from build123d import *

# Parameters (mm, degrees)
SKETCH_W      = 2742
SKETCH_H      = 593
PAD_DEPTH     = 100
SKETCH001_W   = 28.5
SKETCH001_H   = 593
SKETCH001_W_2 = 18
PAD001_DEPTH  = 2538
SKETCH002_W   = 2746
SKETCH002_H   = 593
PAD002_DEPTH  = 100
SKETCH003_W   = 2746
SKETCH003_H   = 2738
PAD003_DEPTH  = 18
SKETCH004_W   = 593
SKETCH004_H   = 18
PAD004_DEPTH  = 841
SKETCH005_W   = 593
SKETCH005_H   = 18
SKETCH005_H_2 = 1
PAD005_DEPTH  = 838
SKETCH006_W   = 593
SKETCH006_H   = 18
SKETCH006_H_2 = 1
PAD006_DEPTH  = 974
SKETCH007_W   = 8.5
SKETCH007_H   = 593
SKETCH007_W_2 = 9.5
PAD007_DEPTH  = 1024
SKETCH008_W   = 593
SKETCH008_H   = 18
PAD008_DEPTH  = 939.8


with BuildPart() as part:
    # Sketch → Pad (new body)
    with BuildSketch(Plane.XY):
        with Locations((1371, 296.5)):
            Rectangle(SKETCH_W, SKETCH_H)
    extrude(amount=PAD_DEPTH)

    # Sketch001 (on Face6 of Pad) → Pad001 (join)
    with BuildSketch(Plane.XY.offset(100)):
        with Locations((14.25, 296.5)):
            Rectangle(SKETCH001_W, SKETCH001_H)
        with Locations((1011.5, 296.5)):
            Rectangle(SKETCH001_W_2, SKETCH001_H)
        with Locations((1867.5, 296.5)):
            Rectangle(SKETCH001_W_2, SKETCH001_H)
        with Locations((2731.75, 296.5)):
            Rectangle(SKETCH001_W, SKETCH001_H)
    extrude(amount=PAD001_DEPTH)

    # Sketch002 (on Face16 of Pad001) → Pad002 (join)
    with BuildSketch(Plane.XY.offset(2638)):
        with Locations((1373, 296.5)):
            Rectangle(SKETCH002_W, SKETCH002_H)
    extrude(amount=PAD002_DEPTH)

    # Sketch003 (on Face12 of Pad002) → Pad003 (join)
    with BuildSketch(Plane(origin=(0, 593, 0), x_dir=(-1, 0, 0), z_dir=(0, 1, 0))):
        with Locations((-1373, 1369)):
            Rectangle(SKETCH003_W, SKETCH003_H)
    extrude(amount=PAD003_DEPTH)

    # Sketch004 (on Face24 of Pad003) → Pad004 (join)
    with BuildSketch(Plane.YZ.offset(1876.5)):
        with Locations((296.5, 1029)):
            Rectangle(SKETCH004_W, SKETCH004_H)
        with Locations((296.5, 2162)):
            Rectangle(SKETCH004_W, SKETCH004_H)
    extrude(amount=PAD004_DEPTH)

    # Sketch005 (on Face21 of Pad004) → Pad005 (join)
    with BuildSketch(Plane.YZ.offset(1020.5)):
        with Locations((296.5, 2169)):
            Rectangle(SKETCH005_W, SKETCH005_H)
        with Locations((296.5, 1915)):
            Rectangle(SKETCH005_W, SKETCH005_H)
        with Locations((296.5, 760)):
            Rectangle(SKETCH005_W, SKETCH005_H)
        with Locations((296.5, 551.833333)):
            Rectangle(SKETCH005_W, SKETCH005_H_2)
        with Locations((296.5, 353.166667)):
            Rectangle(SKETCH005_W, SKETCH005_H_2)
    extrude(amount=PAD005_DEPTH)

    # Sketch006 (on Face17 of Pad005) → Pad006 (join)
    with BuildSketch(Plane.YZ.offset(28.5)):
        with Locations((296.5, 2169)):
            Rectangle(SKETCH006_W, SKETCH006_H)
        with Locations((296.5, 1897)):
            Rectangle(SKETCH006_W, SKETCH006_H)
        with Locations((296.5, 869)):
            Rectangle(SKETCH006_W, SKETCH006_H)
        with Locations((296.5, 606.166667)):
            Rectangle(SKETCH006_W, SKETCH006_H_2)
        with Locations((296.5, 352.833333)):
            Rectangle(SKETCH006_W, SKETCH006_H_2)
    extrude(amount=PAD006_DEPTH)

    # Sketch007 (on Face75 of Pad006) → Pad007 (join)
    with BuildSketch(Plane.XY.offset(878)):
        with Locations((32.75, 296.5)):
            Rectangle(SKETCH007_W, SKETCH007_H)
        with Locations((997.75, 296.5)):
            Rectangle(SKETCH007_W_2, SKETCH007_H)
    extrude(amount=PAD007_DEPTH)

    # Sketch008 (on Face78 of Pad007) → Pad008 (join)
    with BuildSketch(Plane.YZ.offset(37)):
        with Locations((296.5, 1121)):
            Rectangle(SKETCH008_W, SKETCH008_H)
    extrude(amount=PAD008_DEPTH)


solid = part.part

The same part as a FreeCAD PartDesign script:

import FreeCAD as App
import Part
import Sketcher


def add_polygon(sketch, points):
    """Adds a closed chain of lines whose ends are joined by coincident constraints."""
    first, n = sketch.GeometryCount, len(points)
    for a, b in zip(points, points[1:] + points[:1]):
        sketch.addGeometry(Part.LineSegment(App.Vector(*a, 0), App.Vector(*b, 0)), False)
    for i in range(n):
        sketch.addConstraint(Sketcher.Constraint("Coincident", first + i, 2, first + (i + 1) % n, 1))

doc = App.newDocument("Part")
body = doc.addObject("PartDesign::Body", "Body")

# Sketch on XY plane
sketch1 = body.newObject("Sketcher::SketchObject", "Sketch")
sketch1.AttachmentSupport = (doc.getObject("XY_Plane"), [""])
sketch1.MapMode = "FlatFace"
add_polygon(sketch1, [(0, 593), (0, 0), (2742, 0), (2742, 593)])  # lines 0-3
sketch1.addConstraint(Sketcher.Constraint("Vertical", 0))
sketch1.addConstraint(Sketcher.Constraint("Horizontal", 1))
sketch1.addConstraint(Sketcher.Constraint("Vertical", 2))
sketch1.addConstraint(Sketcher.Constraint("Horizontal", 3))
sketch1.addConstraint(Sketcher.Constraint("Coincident", 0, 2, -1, 1))
sketch1.addConstraint(Sketcher.Constraint("DistanceX", 1, 1, 1, 2, 2742.0))
sketch1.addConstraint(Sketcher.Constraint("DistanceY", 0, 2, 0, 1, 593.0))
pad1 = body.newObject("PartDesign::Pad", "Pad")
pad1.Profile = sketch1
pad1.Length = 100

# Sketch on XY plane
sketch2 = body.newObject("Sketcher::SketchObject", "Sketch001")
sketch2.AttachmentSupport = (doc.getObject("XY_Plane"), [""])
sketch2.MapMode = "FlatFace"
sketch2.AttachmentOffset = App.Placement(App.Vector(0, 0, 100), App.Rotation())
add_polygon(sketch2, [(0, 593), (0, 0), (28, 0), (28, 593)])  # lines 0-3
add_polygon(sketch2, [(1002, 593), (1002, 0), (1020, 0), (1020, 593)])  # lines 4-7
add_polygon(sketch2, [(1858, 593), (1858, 0), (1876, 0), (1876, 593)])  # lines 8-11
add_polygon(sketch2, [(2718, 593), (2718, 0), (2746, 0), (2746, 593)])  # lines 12-15
sketch2.addConstraint(Sketcher.Constraint("Vertical", 0))
sketch2.addConstraint(Sketcher.Constraint("Horizontal", 1))
sketch2.addConstraint(Sketcher.Constraint("Vertical", 2))
sketch2.addConstraint(Sketcher.Constraint("Horizontal", 3))
sketch2.addConstraint(Sketcher.Constraint("Vertical", 4))
sketch2.addConstraint(Sketcher.Constraint("Horizontal", 5))
sketch2.addConstraint(Sketcher.Constraint("Vertical", 6))
sketch2.addConstraint(Sketcher.Constraint("Horizontal", 7))
sketch2.addConstraint(Sketcher.Constraint("Vertical", 8))
sketch2.addConstraint(Sketcher.Constraint("Horizontal", 9))
sketch2.addConstraint(Sketcher.Constraint("Vertical", 10))
sketch2.addConstraint(Sketcher.Constraint("Horizontal", 11))
sketch2.addConstraint(Sketcher.Constraint("Vertical", 12))
sketch2.addConstraint(Sketcher.Constraint("Horizontal", 13))
sketch2.addConstraint(Sketcher.Constraint("Vertical", 14))
sketch2.addConstraint(Sketcher.Constraint("Horizontal", 15))
sketch2.addConstraint(Sketcher.Constraint("Coincident", 0, 2, -1, 1))
sketch2.addConstraint(Sketcher.Constraint("PointOnObject", 4, 2, -1))
sketch2.addConstraint(Sketcher.Constraint("PointOnObject", 8, 2, -1))
sketch2.addConstraint(Sketcher.Constraint("PointOnObject", 12, 2, -1))
sketch2.addConstraint(Sketcher.Constraint("Horizontal", 3, 2, 6, 2))
sketch2.addConstraint(Sketcher.Constraint("Horizontal", 7, 2, 10, 2))
sketch2.addConstraint(Sketcher.Constraint("Horizontal", 11, 2, 14, 2))
sketch2.addConstraint(Sketcher.Constraint("Equal", 7, 9))
sketch2.addConstraint(Sketcher.Constraint("Equal", 3, 13))
sketch2.addConstraint(Sketcher.Constraint("DistanceX", 5, 1, 5, 2, 18.0))
sketch2.addConstraint(Sketcher.Constraint("DistanceY", 0, 2, 0, 1, 593.0))
sketch2.addConstraint(Sketcher.Constraint("DistanceX", 1, 1, 1, 2, 28.5))
sketch2.addConstraint(Sketcher.Constraint("DistanceX", -1, 1, 13, 2, 2746.0))
sketch2.addConstraint(Sketcher.Constraint("DistanceX", 1, 2, 4, 2, 974.0))
sketch2.addConstraint(Sketcher.Constraint("DistanceX", 5, 2, 8, 2, 838.0))
pad2 = body.newObject("PartDesign::Pad", "Pad001")
pad2.Profile = sketch2
pad2.Length = 2538

# Sketch on XY plane
sketch3 = body.newObject("Sketcher::SketchObject", "Sketch002")
sketch3.AttachmentSupport = (doc.getObject("XY_Plane"), [""])
sketch3.MapMode = "FlatFace"
sketch3.AttachmentOffset = App.Placement(App.Vector(0, 0, 2638), App.Rotation())
add_polygon(sketch3, [(0, 593), (0, 0), (2746, 0), (2746, 593)])  # lines 0-3
sketch3.addConstraint(Sketcher.Constraint("Vertical", 0))
sketch3.addConstraint(Sketcher.Constraint("Horizontal", 1))
sketch3.addConstraint(Sketcher.Constraint("Vertical", 2))
sketch3.addConstraint(Sketcher.Constraint("Horizontal", 3))
sketch3.addConstraint(Sketcher.Constraint("Coincident", 0, 2, -1, 1))
sketch3.addConstraint(Sketcher.Constraint("DistanceX", 1, 1, 1, 2, 2746.0))
sketch3.addConstraint(Sketcher.Constraint("DistanceY", 0, 2, 0, 1, 593.0))
pad3 = body.newObject("PartDesign::Pad", "Pad002")
pad3.Profile = sketch3
pad3.Length = 100

# Sketch on XZ plane
sketch4 = body.newObject("Sketcher::SketchObject", "Sketch003")
sketch4.AttachmentSupport = (doc.getObject("XZ_Plane"), [""])
sketch4.MapMode = "FlatFace"
sketch4.AttachmentOffset = App.Placement(App.Vector(0, 0, -593), App.Rotation())
add_polygon(sketch4, [(2746, 2738), (2746, 0), (0, 0), (0, 2738)])  # lines 0-3
sketch4.addConstraint(Sketcher.Constraint("Vertical", 0))
sketch4.addConstraint(Sketcher.Constraint("Horizontal", 1))
sketch4.addConstraint(Sketcher.Constraint("Vertical", 2))
sketch4.addConstraint(Sketcher.Constraint("Horizontal", 3))
sketch4.addConstraint(Sketcher.Constraint("Coincident", 1, 2, -1, 1))
sketch4.addConstraint(Sketcher.Constraint("DistanceX", 1, 2, 1, 1, 2746.0))
sketch4.addConstraint(Sketcher.Constraint("DistanceY", 0, 2, 0, 1, 2738.0))
pad4 = body.newObject("PartDesign::Pad", "Pad003")
pad4.Profile = sketch4
pad4.Length = 18
pad4.Reversed = True

# Sketch on YZ plane
sketch5 = body.newObject("Sketcher::SketchObject", "Sketch004")
sketch5.AttachmentSupport = (doc.getObject("YZ_Plane"), [""])
sketch5.MapMode = "FlatFace"
sketch5.AttachmentOffset = App.Placement(App.Vector(0, 0, 1876.5), App.Rotation())
add_polygon(sketch5, [(0, 1038), (0, 1020), (593, 1020), (593, 1038)])  # lines 0-3
add_polygon(sketch5, [(0, 2171), (0, 2153), (593, 2153), (593, 2171)])  # lines 4-7
sketch5.addConstraint(Sketcher.Constraint("Vertical", 0))
sketch5.addConstraint(Sketcher.Constraint("Horizontal", 1))
sketch5.addConstraint(Sketcher.Constraint("Vertical", 2))
sketch5.addConstraint(Sketcher.Constraint("Horizontal", 3))
sketch5.addConstraint(Sketcher.Constraint("Vertical", 4))
sketch5.addConstraint(Sketcher.Constraint("Horizontal", 5))
sketch5.addConstraint(Sketcher.Constraint("Vertical", 6))
sketch5.addConstraint(Sketcher.Constraint("Horizontal", 7))
sketch5.addConstraint(Sketcher.Constraint("PointOnObject", 0, 2, -2))
sketch5.addConstraint(Sketcher.Constraint("PointOnObject", 4, 2, -2))
sketch5.addConstraint(Sketcher.Constraint("Vertical", 2, 2, 5, 2))
sketch5.addConstraint(Sketcher.Constraint("Equal", 2, 4))
sketch5.addConstraint(Sketcher.Constraint("DistanceX", 1, 1, 1, 2, 593.0))
sketch5.addConstraint(Sketcher.Constraint("DistanceY", 0, 2, 0, 1, 18.0))
sketch5.addConstraint(Sketcher.Constraint("DistanceY", -1, 1, 0, 2, 1020.0))
sketch5.addConstraint(Sketcher.Constraint("DistanceY", -1, 1, 4, 2, 2153.0))
pad5 = body.newObject("PartDesign::Pad", "Pad004")
pad5.Profile = sketch5
pad5.Length = 841

# Sketch on YZ plane
sketch6 = body.newObject("Sketcher::SketchObject", "Sketch005")
sketch6.AttachmentSupport = (doc.getObject("YZ_Plane"), [""])
sketch6.MapMode = "FlatFace"
sketch6.AttachmentOffset = App.Placement(App.Vector(0, 0, 1020.5), App.Rotation())
add_polygon(sketch6, [(0, 2178), (0, 2160), (593, 2160), (593, 2178)])  # lines 0-3
add_polygon(sketch6, [(0, 1924), (0, 1906), (593, 1906), (593, 1924)])  # lines 4-7
add_polygon(sketch6, [(0, 769), (0, 751), (593, 751), (593, 769)])  # lines 8-11
add_polygon(sketch6, [(0, 552.3), (0, 551.3), (593, 551.3), (593, 552.3)])  # lines 12-15
add_polygon(sketch6, [(0, 353.7), (0, 352.7), (593, 352.7), (593, 353.7)])  # lines 16-19
sketch6.addConstraint(Sketcher.Constraint("Vertical", 0))
sketch6.addConstraint(Sketcher.Constraint("Horizontal", 1))
sketch6.addConstraint(Sketcher.Constraint("Vertical", 2))
sketch6.addConstraint(Sketcher.Constraint("Horizontal", 3))
sketch6.addConstraint(Sketcher.Constraint("Vertical", 4))
sketch6.addConstraint(Sketcher.Constraint("Horizontal", 5))
sketch6.addConstraint(Sketcher.Constraint("Vertical", 6))
sketch6.addConstraint(Sketcher.Constraint("Horizontal", 7))
sketch6.addConstraint(Sketcher.Constraint("Vertical", 8))
sketch6.addConstraint(Sketcher.Constraint("Horizontal", 9))
sketch6.addConstraint(Sketcher.Constraint("Vertical", 10))
sketch6.addConstraint(Sketcher.Constraint("Horizontal", 11))
sketch6.addConstraint(Sketcher.Constraint("Vertical", 12))
sketch6.addConstraint(Sketcher.Constraint("Horizontal", 13))
sketch6.addConstraint(Sketcher.Constraint("Vertical", 14))
sketch6.addConstraint(Sketcher.Constraint("Horizontal", 15))
sketch6.addConstraint(Sketcher.Constraint("Vertical", 16))
sketch6.addConstraint(Sketcher.Constraint("Horizontal", 17))
sketch6.addConstraint(Sketcher.Constraint("Vertical", 18))
sketch6.addConstraint(Sketcher.Constraint("Horizontal", 19))
sketch6.addConstraint(Sketcher.Constraint("PointOnObject", 0, 2, -2))
sketch6.addConstraint(Sketcher.Constraint("PointOnObject", 4, 2, -2))
sketch6.addConstraint(Sketcher.Constraint("PointOnObject", 8, 2, -2))
sketch6.addConstraint(Sketcher.Constraint("PointOnObject", 12, 2, -2))
sketch6.addConstraint(Sketcher.Constraint("PointOnObject", 16, 2, -2))
sketch6.addConstraint(Sketcher.Constraint("Vertical", 2, 2, 5, 2))
sketch6.addConstraint(Sketcher.Constraint("Vertical", 6, 2, 9, 2))
sketch6.addConstraint(Sketcher.Constraint("Vertical", 10, 2, 13, 2))
sketch6.addConstraint(Sketcher.Constraint("Vertical", 14, 2, 17, 2))
sketch6.addConstraint(Sketcher.Constraint("Equal", 2, 4))
sketch6.addConstraint(Sketcher.Constraint("Equal", 6, 8))
sketch6.addConstraint(Sketcher.Constraint("Equal", 14, 16))
sketch6.addConstraint(Sketcher.Constraint("DistanceX", 1, 1, 1, 2, 593.0))
sketch6.addConstraint(Sketcher.Constraint("DistanceY", 0, 2, 0, 1, 18.0))
sketch6.addConstraint(Sketcher.Constraint("DistanceY", 12, 2, 12, 1, 1.0))
sketch6.addConstraint(Sketcher.Constraint("DistanceY", -1, 1, 0, 2, 2160.0))
sketch6.addConstraint(Sketcher.Constraint("DistanceY", -1, 1, 4, 2, 1906.0))
sketch6.addConstraint(Sketcher.Constraint("DistanceY", -1, 1, 8, 2, 751.0))
sketch6.addConstraint(Sketcher.Constraint("DistanceY", -1, 1, 12, 2, 551.333333))
sketch6.addConstraint(Sketcher.Constraint("DistanceY", -1, 1, 16, 2, 352.666667))
pad6 = body.newObject("PartDesign::Pad", "Pad005")
pad6.Profile = sketch6
pad6.Length = 838

# Sketch on YZ plane
sketch7 = body.newObject("Sketcher::SketchObject", "Sketch006")
sketch7.AttachmentSupport = (doc.getObject("YZ_Plane"), [""])
sketch7.MapMode = "FlatFace"
sketch7.AttachmentOffset = App.Placement(App.Vector(0, 0, 28.5), App.Rotation())
add_polygon(sketch7, [(0, 2178), (0, 2160), (593, 2160), (593, 2178)])  # lines 0-3
add_polygon(sketch7, [(0, 1906), (0, 1888), (593, 1888), (593, 1906)])  # lines 4-7
add_polygon(sketch7, [(0, 878), (0, 860), (593, 860), (593, 878)])  # lines 8-11
add_polygon(sketch7, [(0, 606.7), (0, 605.7), (593, 605.7), (593, 606.7)])  # lines 12-15
add_polygon(sketch7, [(0, 353.3), (0, 352.3), (593, 352.3), (593, 353.3)])  # lines 16-19
sketch7.addConstraint(Sketcher.Constraint("Vertical", 0))
sketch7.addConstraint(Sketcher.Constraint("Horizontal", 1))
sketch7.addConstraint(Sketcher.Constraint("Vertical", 2))
sketch7.addConstraint(Sketcher.Constraint("Horizontal", 3))
sketch7.addConstraint(Sketcher.Constraint("Vertical", 4))
sketch7.addConstraint(Sketcher.Constraint("Horizontal", 5))
sketch7.addConstraint(Sketcher.Constraint("Vertical", 6))
sketch7.addConstraint(Sketcher.Constraint("Horizontal", 7))
sketch7.addConstraint(Sketcher.Constraint("Vertical", 8))
sketch7.addConstraint(Sketcher.Constraint("Horizontal", 9))
sketch7.addConstraint(Sketcher.Constraint("Vertical", 10))
sketch7.addConstraint(Sketcher.Constraint("Horizontal", 11))
sketch7.addConstraint(Sketcher.Constraint("Vertical", 12))
sketch7.addConstraint(Sketcher.Constraint("Horizontal", 13))
sketch7.addConstraint(Sketcher.Constraint("Vertical", 14))
sketch7.addConstraint(Sketcher.Constraint("Horizontal", 15))
sketch7.addConstraint(Sketcher.Constraint("Vertical", 16))
sketch7.addConstraint(Sketcher.Constraint("Horizontal", 17))
sketch7.addConstraint(Sketcher.Constraint("Vertical", 18))
sketch7.addConstraint(Sketcher.Constraint("Horizontal", 19))
sketch7.addConstraint(Sketcher.Constraint("PointOnObject", 0, 2, -2))
sketch7.addConstraint(Sketcher.Constraint("PointOnObject", 4, 2, -2))
sketch7.addConstraint(Sketcher.Constraint("PointOnObject", 8, 2, -2))
sketch7.addConstraint(Sketcher.Constraint("PointOnObject", 12, 2, -2))
sketch7.addConstraint(Sketcher.Constraint("PointOnObject", 16, 2, -2))
sketch7.addConstraint(Sketcher.Constraint("Vertical", 2, 2, 5, 2))
sketch7.addConstraint(Sketcher.Constraint("Vertical", 6, 2, 9, 2))
sketch7.addConstraint(Sketcher.Constraint("Vertical", 10, 2, 13, 2))
sketch7.addConstraint(Sketcher.Constraint("Vertical", 14, 2, 17, 2))
sketch7.addConstraint(Sketcher.Constraint("Equal", 2, 4))
sketch7.addConstraint(Sketcher.Constraint("Equal", 6, 8))
sketch7.addConstraint(Sketcher.Constraint("Equal", 14, 16))
sketch7.addConstraint(Sketcher.Constraint("DistanceX", 1, 1, 1, 2, 593.0))
sketch7.addConstraint(Sketcher.Constraint("DistanceY", 0, 2, 0, 1, 18.0))
sketch7.addConstraint(Sketcher.Constraint("DistanceY", 12, 2, 12, 1, 1.0))
sketch7.addConstraint(Sketcher.Constraint("DistanceY", -1, 1, 0, 2, 2160.0))
sketch7.addConstraint(Sketcher.Constraint("DistanceY", -1, 1, 4, 2, 1888.0))
sketch7.addConstraint(Sketcher.Constraint("DistanceY", -1, 1, 8, 2, 860.0))
sketch7.addConstraint(Sketcher.Constraint("DistanceY", -1, 1, 12, 2, 605.666667))
sketch7.addConstraint(Sketcher.Constraint("DistanceY", -1, 1, 16, 2, 352.333333))
pad7 = body.newObject("PartDesign::Pad", "Pad006")
pad7.Profile = sketch7
pad7.Length = 974

# Sketch on XY plane
sketch8 = body.newObject("Sketcher::SketchObject", "Sketch007")
sketch8.AttachmentSupport = (doc.getObject("XY_Plane"), [""])
sketch8.MapMode = "FlatFace"
sketch8.AttachmentOffset = App.Placement(App.Vector(0, 0, 878), App.Rotation())
add_polygon(sketch8, [(28, 593), (28, 0), (37, 0), (37, 593)])  # lines 0-3
add_polygon(sketch8, [(993, 593), (993, 0), (1002, 0), (1002, 593)])  # lines 4-7
sketch8.addConstraint(Sketcher.Constraint("Vertical", 0))
sketch8.addConstraint(Sketcher.Constraint("Horizontal", 1))
sketch8.addConstraint(Sketcher.Constraint("Vertical", 2))
sketch8.addConstraint(Sketcher.Constraint("Horizontal", 3))
sketch8.addConstraint(Sketcher.Constraint("Vertical", 4))
sketch8.addConstraint(Sketcher.Constraint("Horizontal", 5))
sketch8.addConstraint(Sketcher.Constraint("Vertical", 6))
sketch8.addConstraint(Sketcher.Constraint("Horizontal", 7))
sketch8.addConstraint(Sketcher.Constraint("PointOnObject", 0, 2, -1))
sketch8.addConstraint(Sketcher.Constraint("PointOnObject", 4, 2, -1))
sketch8.addConstraint(Sketcher.Constraint("Horizontal", 3, 2, 6, 2))
sketch8.addConstraint(Sketcher.Constraint("DistanceY", 0, 2, 0, 1, 593.0))
sketch8.addConstraint(Sketcher.Constraint("DistanceX", 1, 1, 1, 2, 8.5))
sketch8.addConstraint(Sketcher.Constraint("DistanceX", 5, 1, 5, 2, 9.5))
sketch8.addConstraint(Sketcher.Constraint("DistanceX", -1, 1, 1, 2, 37.0))
sketch8.addConstraint(Sketcher.Constraint("DistanceX", -1, 1, 4, 2, 993.0))
pad8 = body.newObject("PartDesign::Pad", "Pad007")
pad8.Profile = sketch8
pad8.Length = 1024

# Sketch on YZ plane
sketch9 = body.newObject("Sketcher::SketchObject", "Sketch008")
sketch9.AttachmentSupport = (doc.getObject("YZ_Plane"), [""])
sketch9.MapMode = "FlatFace"
sketch9.AttachmentOffset = App.Placement(App.Vector(0, 0, 37), App.Rotation())
add_polygon(sketch9, [(0, 1130), (0, 1112), (593, 1112), (593, 1130)])  # lines 0-3
sketch9.addConstraint(Sketcher.Constraint("Vertical", 0))
sketch9.addConstraint(Sketcher.Constraint("Horizontal", 1))
sketch9.addConstraint(Sketcher.Constraint("Vertical", 2))
sketch9.addConstraint(Sketcher.Constraint("Horizontal", 3))
sketch9.addConstraint(Sketcher.Constraint("PointOnObject", 0, 2, -2))
sketch9.addConstraint(Sketcher.Constraint("DistanceX", 1, 1, 1, 2, 593.0))
sketch9.addConstraint(Sketcher.Constraint("DistanceY", 0, 2, 0, 1, 18.0))
sketch9.addConstraint(Sketcher.Constraint("DistanceY", -1, 1, 0, 2, 1112.0))
pad9 = body.newObject("PartDesign::Pad", "Pad008")
pad9.Profile = sketch9
pad9.Length = 939.8

doc.recompute()
